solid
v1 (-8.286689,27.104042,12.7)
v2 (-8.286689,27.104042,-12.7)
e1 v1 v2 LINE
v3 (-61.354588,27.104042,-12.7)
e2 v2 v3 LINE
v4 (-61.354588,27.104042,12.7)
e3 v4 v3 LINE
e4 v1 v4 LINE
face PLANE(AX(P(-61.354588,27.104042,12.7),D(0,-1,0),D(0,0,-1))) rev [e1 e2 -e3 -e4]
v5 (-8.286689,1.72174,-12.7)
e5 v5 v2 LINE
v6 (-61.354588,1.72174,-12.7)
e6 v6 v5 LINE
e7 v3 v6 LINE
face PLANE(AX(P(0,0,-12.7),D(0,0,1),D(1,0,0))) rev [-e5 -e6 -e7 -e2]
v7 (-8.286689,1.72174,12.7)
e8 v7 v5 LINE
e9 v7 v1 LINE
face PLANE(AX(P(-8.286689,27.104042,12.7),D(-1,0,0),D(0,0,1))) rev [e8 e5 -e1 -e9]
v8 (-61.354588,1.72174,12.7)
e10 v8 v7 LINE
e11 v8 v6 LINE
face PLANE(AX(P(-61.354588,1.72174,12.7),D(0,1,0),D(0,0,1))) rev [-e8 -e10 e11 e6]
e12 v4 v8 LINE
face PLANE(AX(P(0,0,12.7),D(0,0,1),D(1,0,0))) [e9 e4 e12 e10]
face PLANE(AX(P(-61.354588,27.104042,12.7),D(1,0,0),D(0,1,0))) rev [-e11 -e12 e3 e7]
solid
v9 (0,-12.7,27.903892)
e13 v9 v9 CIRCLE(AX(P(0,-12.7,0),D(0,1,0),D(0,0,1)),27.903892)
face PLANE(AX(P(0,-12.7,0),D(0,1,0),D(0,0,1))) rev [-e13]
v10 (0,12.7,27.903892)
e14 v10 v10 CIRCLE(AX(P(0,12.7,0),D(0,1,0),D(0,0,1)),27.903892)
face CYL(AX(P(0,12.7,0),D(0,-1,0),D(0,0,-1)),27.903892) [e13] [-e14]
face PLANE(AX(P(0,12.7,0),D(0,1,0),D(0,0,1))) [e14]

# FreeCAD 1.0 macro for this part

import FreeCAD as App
import Part
import Sketcher

V = App.Vector
Q = App.Units.Quantity

doc = App.newDocument("Part")
body = doc.addObject("PartDesign::Body", "Body")

# Sketch on XZ plane
sketch1 = doc.addObject("Sketcher::SketchObject", "Sketch")
body.addObject(sketch1)
sketch1.AttachmentSupport = (doc.XZ_Plane, [""])
sketch1.MapMode = "FlatFace"
sketch1.addGeometry(Part.Circle(V(0, 0, 0), V(0, 0, 1), 28), False)
sketch1.addConstraint(Sketcher.Constraint("Coincident", 0, 3, -1, 1))
sketch1.addConstraint(Sketcher.Constraint("Diameter", 0, 55.807784))
pad1 = doc.addObject("PartDesign::Pad", "Pad")
body.addObject(pad1)
pad1.Profile = sketch1
pad1.Length = Q("1 in")
pad1.Midplane = True
body2 = doc.addObject("PartDesign::Body", "Body001")

# Sketch on XY plane
sketch2 = doc.addObject("Sketcher::SketchObject", "Sketch001")
body2.addObject(sketch2)
sketch2.AttachmentSupport = (doc.getObject("XY_Plane001"), [""])
sketch2.MapMode = "FlatFace"
sketch2.addGeometry(Part.LineSegment(V(-61, 27, 0), V(-61, 2, 0)), False)
sketch2.addGeometry(Part.LineSegment(V(-61, 2, 0), V(-8, 2, 0)), False)
sketch2.addGeometry(Part.LineSegment(V(-8, 2, 0), V(-8, 27, 0)), False)
sketch2.addGeometry(Part.LineSegment(V(-8, 27, 0), V(-61, 27, 0)), False)
sketch2.addConstraint(Sketcher.Constraint("Coincident", 0, 2, 1, 1))
sketch2.addConstraint(Sketcher.Constraint("Coincident", 1, 2, 2, 1))
sketch2.addConstraint(Sketcher.Constraint("Coincident", 2, 2, 3, 1))
sketch2.addConstraint(Sketcher.Constraint("Coincident", 3, 2, 0, 1))
sketch2.addConstraint(Sketcher.Constraint("Vertical", 0))
sketch2.addConstraint(Sketcher.Constraint("Horizontal", 1))
sketch2.addConstraint(Sketcher.Constraint("Vertical", 2))
sketch2.addConstraint(Sketcher.Constraint("Horizontal", 3))
sketch2.addConstraint(Sketcher.Constraint("DistanceX", 1, 1, 1, 2, 53.067899))
sketch2.addConstraint(Sketcher.Constraint("DistanceY", 0, 2, 0, 1, 25.382303))
sketch2.addConstraint(Sketcher.Constraint("DistanceY", -1, 1, 0, 2, 1.72174))
sketch2.addConstraint(Sketcher.Constraint("DistanceX", 1, 2, -1, 1, 8.286689))
pad2 = doc.addObject("PartDesign::Pad", "Pad001")
body2.addObject(pad2)
pad2.Profile = sketch2
pad2.Length = Q("1 in")
pad2.Midplane = True

doc.recompute()
